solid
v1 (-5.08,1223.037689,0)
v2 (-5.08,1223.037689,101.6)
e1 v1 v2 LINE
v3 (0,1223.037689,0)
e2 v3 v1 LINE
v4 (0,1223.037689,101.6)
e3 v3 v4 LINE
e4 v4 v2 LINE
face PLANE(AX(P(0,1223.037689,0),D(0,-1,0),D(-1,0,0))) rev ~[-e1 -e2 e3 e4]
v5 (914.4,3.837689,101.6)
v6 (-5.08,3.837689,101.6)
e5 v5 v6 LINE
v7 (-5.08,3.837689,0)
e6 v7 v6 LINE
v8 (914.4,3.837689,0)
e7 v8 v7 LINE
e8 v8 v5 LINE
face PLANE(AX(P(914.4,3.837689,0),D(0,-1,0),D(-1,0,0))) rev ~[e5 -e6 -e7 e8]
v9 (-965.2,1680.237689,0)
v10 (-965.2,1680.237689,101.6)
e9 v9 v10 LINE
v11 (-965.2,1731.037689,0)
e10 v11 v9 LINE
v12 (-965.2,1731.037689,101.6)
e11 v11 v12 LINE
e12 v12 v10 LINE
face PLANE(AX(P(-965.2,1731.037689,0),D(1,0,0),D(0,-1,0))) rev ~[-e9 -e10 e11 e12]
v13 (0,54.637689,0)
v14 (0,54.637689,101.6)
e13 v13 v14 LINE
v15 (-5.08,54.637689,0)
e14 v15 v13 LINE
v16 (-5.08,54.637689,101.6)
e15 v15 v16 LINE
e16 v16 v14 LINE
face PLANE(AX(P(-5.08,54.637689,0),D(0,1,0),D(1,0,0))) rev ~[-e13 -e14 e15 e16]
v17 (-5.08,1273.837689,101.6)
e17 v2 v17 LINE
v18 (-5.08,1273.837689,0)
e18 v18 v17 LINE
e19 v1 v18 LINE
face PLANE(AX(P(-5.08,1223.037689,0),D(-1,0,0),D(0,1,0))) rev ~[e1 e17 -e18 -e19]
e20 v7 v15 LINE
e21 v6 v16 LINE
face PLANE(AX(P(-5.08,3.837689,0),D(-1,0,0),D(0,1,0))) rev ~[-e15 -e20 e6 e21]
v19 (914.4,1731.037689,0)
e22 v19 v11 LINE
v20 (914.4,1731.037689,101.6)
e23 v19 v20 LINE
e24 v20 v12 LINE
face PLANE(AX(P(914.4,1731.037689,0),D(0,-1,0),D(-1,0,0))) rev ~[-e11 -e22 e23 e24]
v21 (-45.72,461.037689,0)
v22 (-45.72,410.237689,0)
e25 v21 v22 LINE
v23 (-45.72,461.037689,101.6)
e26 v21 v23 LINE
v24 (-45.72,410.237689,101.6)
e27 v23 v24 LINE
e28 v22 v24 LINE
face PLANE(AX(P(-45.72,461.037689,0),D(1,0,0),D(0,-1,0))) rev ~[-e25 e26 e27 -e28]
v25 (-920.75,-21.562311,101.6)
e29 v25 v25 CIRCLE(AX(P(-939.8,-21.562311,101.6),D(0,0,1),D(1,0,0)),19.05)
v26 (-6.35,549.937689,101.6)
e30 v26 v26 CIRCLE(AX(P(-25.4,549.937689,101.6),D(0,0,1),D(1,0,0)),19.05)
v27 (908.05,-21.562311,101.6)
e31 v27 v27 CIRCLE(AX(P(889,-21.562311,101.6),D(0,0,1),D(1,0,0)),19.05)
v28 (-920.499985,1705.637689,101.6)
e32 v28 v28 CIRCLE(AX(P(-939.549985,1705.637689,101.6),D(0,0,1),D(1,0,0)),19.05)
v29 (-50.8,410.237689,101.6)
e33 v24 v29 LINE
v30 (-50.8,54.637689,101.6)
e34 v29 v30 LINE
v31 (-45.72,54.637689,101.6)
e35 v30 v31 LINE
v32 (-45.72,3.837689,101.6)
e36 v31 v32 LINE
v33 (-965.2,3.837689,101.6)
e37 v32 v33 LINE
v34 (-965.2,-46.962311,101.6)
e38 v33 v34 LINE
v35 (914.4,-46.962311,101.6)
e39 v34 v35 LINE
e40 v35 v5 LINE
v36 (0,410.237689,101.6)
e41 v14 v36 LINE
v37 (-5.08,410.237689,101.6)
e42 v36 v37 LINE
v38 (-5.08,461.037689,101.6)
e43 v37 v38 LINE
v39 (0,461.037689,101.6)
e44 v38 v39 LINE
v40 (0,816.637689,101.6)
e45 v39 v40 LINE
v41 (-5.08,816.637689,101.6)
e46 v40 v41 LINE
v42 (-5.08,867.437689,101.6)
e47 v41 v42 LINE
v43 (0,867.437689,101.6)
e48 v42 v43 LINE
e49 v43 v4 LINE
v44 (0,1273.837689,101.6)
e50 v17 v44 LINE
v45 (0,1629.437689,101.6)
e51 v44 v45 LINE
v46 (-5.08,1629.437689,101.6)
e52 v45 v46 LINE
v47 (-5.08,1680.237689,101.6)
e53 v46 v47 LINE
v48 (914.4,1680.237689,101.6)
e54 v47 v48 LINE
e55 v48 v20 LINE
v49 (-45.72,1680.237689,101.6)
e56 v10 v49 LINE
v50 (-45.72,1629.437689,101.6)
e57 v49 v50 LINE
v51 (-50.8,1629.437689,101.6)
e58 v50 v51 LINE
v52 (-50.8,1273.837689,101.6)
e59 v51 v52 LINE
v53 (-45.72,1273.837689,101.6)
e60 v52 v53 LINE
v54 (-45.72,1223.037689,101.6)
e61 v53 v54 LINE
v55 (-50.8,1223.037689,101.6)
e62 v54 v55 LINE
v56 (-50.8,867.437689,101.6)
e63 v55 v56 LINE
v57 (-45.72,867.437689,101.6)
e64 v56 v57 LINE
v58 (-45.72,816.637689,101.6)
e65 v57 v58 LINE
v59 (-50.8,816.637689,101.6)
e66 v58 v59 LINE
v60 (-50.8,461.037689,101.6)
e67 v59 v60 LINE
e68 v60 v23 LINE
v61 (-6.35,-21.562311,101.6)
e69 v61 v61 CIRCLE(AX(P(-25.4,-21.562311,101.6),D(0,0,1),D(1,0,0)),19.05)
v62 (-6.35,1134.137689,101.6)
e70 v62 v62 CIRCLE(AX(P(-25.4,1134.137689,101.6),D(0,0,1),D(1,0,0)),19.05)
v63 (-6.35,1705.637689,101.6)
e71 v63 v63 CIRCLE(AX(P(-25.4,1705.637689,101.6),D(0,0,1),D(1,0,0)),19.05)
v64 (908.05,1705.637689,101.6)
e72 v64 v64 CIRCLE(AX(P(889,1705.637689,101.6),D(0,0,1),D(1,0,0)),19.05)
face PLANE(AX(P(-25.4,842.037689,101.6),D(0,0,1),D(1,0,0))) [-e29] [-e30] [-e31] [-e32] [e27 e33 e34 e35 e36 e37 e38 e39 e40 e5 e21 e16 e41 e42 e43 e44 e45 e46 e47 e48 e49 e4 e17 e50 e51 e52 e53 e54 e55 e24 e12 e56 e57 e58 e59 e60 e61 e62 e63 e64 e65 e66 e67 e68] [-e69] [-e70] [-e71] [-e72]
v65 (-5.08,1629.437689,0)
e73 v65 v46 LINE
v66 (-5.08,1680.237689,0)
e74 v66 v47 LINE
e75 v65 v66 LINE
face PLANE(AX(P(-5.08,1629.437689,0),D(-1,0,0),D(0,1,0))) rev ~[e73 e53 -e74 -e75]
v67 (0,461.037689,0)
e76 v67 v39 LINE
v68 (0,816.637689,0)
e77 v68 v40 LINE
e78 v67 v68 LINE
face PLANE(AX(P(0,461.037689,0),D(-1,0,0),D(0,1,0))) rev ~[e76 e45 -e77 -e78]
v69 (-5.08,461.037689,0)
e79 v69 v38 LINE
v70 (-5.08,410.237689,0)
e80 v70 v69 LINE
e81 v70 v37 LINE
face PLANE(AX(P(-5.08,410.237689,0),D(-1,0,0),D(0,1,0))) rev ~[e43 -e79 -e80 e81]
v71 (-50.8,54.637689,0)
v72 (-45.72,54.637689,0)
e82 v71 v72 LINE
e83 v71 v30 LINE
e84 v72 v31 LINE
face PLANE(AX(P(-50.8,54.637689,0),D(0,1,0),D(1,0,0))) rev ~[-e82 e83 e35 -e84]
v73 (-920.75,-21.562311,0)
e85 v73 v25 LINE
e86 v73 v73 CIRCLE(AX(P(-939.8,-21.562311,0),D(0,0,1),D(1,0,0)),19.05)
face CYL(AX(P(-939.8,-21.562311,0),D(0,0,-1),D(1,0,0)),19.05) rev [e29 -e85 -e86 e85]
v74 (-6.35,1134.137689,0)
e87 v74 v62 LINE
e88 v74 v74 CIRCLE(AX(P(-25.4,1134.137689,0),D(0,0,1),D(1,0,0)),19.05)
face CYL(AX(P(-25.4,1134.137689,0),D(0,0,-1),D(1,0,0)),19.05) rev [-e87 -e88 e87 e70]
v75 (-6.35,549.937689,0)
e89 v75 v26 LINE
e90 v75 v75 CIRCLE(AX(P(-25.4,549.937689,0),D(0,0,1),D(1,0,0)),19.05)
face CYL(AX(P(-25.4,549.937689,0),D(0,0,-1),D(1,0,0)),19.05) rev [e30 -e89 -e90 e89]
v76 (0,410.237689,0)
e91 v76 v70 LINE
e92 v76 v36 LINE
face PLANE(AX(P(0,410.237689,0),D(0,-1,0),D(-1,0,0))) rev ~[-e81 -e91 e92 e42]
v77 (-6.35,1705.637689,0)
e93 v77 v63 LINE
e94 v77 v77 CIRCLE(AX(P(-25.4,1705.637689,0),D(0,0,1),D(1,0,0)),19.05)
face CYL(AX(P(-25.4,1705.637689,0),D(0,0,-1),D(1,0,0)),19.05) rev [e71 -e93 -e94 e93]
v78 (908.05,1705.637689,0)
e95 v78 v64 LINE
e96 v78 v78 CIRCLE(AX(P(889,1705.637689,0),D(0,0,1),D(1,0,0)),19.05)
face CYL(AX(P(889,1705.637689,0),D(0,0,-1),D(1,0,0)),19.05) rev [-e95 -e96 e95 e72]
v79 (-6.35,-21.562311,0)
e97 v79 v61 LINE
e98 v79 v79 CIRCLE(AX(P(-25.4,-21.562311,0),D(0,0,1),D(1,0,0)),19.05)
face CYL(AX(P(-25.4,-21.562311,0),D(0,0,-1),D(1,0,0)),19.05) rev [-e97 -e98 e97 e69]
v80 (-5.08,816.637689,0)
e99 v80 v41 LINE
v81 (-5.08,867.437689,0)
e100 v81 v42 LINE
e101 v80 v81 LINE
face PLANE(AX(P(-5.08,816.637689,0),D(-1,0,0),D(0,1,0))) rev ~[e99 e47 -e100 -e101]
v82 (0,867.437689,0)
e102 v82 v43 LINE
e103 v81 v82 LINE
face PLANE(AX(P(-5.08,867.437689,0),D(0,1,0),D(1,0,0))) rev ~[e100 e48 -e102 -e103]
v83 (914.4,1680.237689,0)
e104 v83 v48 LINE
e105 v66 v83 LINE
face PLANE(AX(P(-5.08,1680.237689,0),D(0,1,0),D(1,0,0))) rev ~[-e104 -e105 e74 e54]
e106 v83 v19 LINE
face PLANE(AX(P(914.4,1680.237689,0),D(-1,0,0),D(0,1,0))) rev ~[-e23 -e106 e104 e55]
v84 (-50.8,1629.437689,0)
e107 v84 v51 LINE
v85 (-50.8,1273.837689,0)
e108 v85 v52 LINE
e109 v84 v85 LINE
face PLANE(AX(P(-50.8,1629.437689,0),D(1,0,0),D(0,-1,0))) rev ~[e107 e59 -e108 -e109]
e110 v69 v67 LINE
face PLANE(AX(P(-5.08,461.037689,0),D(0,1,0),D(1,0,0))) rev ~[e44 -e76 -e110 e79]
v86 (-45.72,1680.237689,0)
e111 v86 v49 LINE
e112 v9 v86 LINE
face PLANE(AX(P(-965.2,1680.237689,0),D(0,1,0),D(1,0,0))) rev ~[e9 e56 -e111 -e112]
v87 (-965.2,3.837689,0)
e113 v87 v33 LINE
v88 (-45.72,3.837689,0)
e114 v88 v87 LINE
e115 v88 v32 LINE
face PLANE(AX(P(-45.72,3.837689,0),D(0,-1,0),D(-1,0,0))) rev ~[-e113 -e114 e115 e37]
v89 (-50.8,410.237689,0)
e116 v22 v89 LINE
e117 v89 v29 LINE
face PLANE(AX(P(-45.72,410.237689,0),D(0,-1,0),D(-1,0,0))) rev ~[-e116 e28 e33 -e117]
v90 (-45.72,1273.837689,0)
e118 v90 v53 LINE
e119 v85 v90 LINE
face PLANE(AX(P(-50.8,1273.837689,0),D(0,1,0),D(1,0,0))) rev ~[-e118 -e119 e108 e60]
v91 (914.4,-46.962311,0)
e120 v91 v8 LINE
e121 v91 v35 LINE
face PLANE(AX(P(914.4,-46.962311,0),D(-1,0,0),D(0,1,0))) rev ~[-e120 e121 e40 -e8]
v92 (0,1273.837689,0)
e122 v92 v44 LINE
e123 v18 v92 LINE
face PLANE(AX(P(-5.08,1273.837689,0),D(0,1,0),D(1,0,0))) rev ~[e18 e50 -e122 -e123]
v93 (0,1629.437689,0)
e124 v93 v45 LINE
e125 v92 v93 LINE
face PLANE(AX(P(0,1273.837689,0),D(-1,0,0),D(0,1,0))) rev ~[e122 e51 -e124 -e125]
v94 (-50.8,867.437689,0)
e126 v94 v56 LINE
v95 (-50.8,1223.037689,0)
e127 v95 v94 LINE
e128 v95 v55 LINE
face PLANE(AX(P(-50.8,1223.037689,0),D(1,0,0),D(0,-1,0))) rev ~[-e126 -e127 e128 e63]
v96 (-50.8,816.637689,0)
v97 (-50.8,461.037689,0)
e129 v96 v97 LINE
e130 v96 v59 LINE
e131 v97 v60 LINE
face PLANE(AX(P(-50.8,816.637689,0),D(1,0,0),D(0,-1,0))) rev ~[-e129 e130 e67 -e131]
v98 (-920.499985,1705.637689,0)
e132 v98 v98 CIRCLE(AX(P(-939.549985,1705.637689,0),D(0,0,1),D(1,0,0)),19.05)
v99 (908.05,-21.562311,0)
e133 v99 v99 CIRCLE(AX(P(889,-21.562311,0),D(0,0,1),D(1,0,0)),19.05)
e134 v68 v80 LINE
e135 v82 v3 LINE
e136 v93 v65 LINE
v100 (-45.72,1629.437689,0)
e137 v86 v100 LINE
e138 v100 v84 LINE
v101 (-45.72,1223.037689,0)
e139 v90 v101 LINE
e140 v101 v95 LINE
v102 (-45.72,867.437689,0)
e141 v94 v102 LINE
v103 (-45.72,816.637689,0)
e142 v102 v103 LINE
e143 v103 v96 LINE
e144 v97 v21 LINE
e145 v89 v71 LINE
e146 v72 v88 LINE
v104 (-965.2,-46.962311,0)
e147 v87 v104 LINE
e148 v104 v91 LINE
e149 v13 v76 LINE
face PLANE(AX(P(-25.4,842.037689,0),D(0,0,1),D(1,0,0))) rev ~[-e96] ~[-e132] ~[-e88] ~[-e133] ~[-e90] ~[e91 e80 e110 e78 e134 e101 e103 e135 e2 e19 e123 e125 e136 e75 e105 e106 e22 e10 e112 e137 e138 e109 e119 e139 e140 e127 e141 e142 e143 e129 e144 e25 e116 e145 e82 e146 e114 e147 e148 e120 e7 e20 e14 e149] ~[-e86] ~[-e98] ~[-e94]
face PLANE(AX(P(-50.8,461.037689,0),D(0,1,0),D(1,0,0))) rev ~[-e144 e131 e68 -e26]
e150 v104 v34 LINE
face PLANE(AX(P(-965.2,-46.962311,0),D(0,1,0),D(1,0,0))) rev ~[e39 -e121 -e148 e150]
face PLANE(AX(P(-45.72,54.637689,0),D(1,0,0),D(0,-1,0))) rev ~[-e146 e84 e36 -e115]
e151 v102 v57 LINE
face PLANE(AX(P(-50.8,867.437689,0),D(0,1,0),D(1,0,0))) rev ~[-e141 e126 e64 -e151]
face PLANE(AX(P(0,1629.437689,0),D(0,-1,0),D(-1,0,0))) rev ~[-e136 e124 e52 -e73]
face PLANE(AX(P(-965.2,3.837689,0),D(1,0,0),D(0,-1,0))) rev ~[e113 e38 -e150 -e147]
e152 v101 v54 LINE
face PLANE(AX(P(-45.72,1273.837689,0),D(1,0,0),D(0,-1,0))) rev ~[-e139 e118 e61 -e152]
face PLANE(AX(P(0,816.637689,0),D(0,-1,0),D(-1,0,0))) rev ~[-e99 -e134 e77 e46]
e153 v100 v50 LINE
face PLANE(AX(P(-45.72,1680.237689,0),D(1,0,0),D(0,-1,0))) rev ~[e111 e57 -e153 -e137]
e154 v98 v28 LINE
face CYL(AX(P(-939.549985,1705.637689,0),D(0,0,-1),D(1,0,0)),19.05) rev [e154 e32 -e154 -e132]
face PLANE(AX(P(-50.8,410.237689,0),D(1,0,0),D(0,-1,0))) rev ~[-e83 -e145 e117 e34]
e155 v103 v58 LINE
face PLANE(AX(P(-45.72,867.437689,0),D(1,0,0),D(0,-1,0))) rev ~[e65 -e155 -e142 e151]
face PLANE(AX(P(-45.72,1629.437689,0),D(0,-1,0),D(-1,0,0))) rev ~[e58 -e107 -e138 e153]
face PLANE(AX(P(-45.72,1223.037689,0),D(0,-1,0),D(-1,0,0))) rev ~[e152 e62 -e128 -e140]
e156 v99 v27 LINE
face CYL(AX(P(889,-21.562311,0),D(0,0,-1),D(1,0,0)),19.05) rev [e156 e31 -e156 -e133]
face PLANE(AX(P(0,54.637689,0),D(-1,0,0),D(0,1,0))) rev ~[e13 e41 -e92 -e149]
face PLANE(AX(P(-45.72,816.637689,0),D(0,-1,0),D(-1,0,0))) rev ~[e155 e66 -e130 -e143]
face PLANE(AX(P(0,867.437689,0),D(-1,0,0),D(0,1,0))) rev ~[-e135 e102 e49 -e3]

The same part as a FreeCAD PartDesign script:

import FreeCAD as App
import Part
import Sketcher
Q = App.Units.Quantity


def add_polygon(sketch, points):
    """Adds a closed chain of lines whose ends are joined by coincident constraints."""
    first, n = sketch.GeometryCount, len(points)
    for a, b in zip(points, points[1:] + points[:1]):
        sketch.addGeometry(Part.LineSegment(App.Vector(*a, 0), App.Vector(*b, 0)), False)
    for i in range(n):
        sketch.addConstraint(Sketcher.Constraint("Coincident", first + i, 2, first + (i + 1) % n, 1))

doc = App.newDocument("Part")
body = doc.addObject("PartDesign::Body", "Body")

# Sketch on XY plane
sketch1 = doc.addObject("Sketcher::SketchObject", "Sketch")
body.addObject(sketch1)
sketch1.AttachmentSupport = (doc.XY_Plane, [""])
sketch1.MapMode = "FlatFace"
add_polygon(sketch1, [(-965, 1680), (-46, 1680), (-46, 1629), (-51, 1629), (-51, 1274), (-46, 1274), (-46, 1223), (-51, 1223), (-51, 867), (-46, 867), (-46, 817), (-51, 817), (-51, 461), (-46, 461), (-46, 410), (-51, 410), (-51, 55), (-46, 55), (-46, 4), (-965, 4), (-965, -47), (914, -47), (914, 4), (-5, 4), (-5, 55), (0, 55), (0, 410), (-5, 410), (-5, 461), (0, 461), (0, 817), (-5, 817), (-5, 867), (0, 867), (0, 1223), (-5, 1223), (-5, 1274), (0, 1274), (0, 1629), (-5, 1629), (-5, 1680), (914, 1680), (914, 1731), (-965, 1731)])  # lines 0-43
sketch1.addGeometry(Part.Circle(App.Vector(-940, -22, 0), App.Vector(0, 0, 1), 19), False)  # 44
sketch1.addGeometry(Part.Circle(App.Vector(-25, -22, 0), App.Vector(0, 0, 1), 19), False)  # 45
sketch1.addGeometry(Part.Circle(App.Vector(889, -22, 0), App.Vector(0, 0, 1), 19), False)  # 46
sketch1.addGeometry(Part.Circle(App.Vector(-25, 550, 0), App.Vector(0, 0, 1), 19), False)  # 47
sketch1.addGeometry(Part.Circle(App.Vector(-940, 1706, 0), App.Vector(0, 0, 1), 19), False)  # 48
sketch1.addGeometry(Part.Circle(App.Vector(-25, 1134, 0), App.Vector(0, 0, 1), 19), False)  # 49
sketch1.addGeometry(Part.Circle(App.Vector(-25, 1706, 0), App.Vector(0, 0, 1), 19), False)  # 50
sketch1.addGeometry(Part.Circle(App.Vector(889, 1706, 0), App.Vector(0, 0, 1), 19), False)  # 51
sketch1.addConstraint([
    Sketcher.Constraint("Horizontal", 0),
    Sketcher.Constraint("Vertical", 1),
    Sketcher.Constraint("Horizontal", 2),
    Sketcher.Constraint("Vertical", 3),
    Sketcher.Constraint("Horizontal", 4),
    Sketcher.Constraint("Vertical", 5),
    Sketcher.Constraint("Horizontal", 6),
    Sketcher.Constraint("Vertical", 7),
    Sketcher.Constraint("Horizontal", 8),
    Sketcher.Constraint("Vertical", 9),
    Sketcher.Constraint("Horizontal", 10),
    Sketcher.Constraint("Vertical", 11),
    Sketcher.Constraint("Horizontal", 12),
    Sketcher.Constraint("Vertical", 13),
    Sketcher.Constraint("Horizontal", 14),
    Sketcher.Constraint("Vertical", 15),
    Sketcher.Constraint("Horizontal", 16),
    Sketcher.Constraint("Vertical", 17),
    Sketcher.Constraint("Horizontal", 18),
    Sketcher.Constraint("Vertical", 19),
    Sketcher.Constraint("Horizontal", 20),
    Sketcher.Constraint("Vertical", 21),
    Sketcher.Constraint("Horizontal", 22),
    Sketcher.Constraint("Vertical", 23),
    Sketcher.Constraint("Horizontal", 24),
    Sketcher.Constraint("Vertical", 25),
    Sketcher.Constraint("Horizontal", 26),
    Sketcher.Constraint("Vertical", 27),
    Sketcher.Constraint("Horizontal", 28),
    Sketcher.Constraint("Vertical", 29),
    Sketcher.Constraint("Horizontal", 30),
    Sketcher.Constraint("Vertical", 31),
    Sketcher.Constraint("Horizontal", 32),
    Sketcher.Constraint("Vertical", 33),
    Sketcher.Constraint("Horizontal", 34),
    Sketcher.Constraint("Vertical", 35),
    Sketcher.Constraint("Horizontal", 36),
    Sketcher.Constraint("Vertical", 37),
    Sketcher.Constraint("Horizontal", 38),
    Sketcher.Constraint("Vertical", 39),
    Sketcher.Constraint("Horizontal", 40),
    Sketcher.Constraint("Vertical", 41),
    Sketcher.Constraint("Horizontal", 42),
    Sketcher.Constraint("Vertical", 43),
    Sketcher.Constraint("Equal", 44, 45),
    Sketcher.Constraint("Equal", 45, 46),
    Sketcher.Constraint("Equal", 46, 47),
    Sketcher.Constraint("Equal", 47, 48),
    Sketcher.Constraint("Equal", 48, 49),
    Sketcher.Constraint("Equal", 49, 50),
    Sketcher.Constraint("Equal", 50, 51),
    Sketcher.Constraint("PointOnObject", 24, 2, -2),
    Sketcher.Constraint("PointOnObject", 28, 2, -2),
    Sketcher.Constraint("PointOnObject", 32, 2, -2),
    Sketcher.Constraint("PointOnObject", 36, 2, -2),
    Sketcher.Constraint("Horizontal", 44, 3, 45, 3),
    Sketcher.Constraint("Horizontal", 45, 3, 46, 3),
    Sketcher.Constraint("Horizontal", 48, 3, 50, 3),
    Sketcher.Constraint("Horizontal", 50, 3, 51, 3),
    Sketcher.Constraint("Horizontal", 18, 2, 21, 2),
    Sketcher.Constraint("Horizontal", 16, 2, 23, 2),
    Sketcher.Constraint("Horizontal", 14, 2, 25, 2),
    Sketcher.Constraint("Horizontal", 12, 2, 27, 2),
    Sketcher.Constraint("Horizontal", 10, 2, 29, 2),
    Sketcher.Constraint("Horizontal", 8, 2, 31, 2),
    Sketcher.Constraint("Horizontal", 6, 2, 33, 2),
    Sketcher.Constraint("Horizontal", 4, 2, 35, 2),
    Sketcher.Constraint("Horizontal", 2, 2, 37, 2),
    Sketcher.Constraint("Horizontal", 0, 2, 39, 2),
    Sketcher.Constraint("Vertical", 45, 3, 47, 3),
    Sketcher.Constraint("Vertical", 47, 3, 49, 3),
    Sketcher.Constraint("Vertical", 49, 3, 50, 3),
    Sketcher.Constraint("Vertical", 46, 3, 51, 3),
    Sketcher.Constraint("Vertical", 1, 2, 4, 2),
    Sketcher.Constraint("Vertical", 3, 2, 6, 2),
    Sketcher.Constraint("Vertical", 5, 2, 8, 2),
    Sketcher.Constraint("Vertical", 7, 2, 10, 2),
    Sketcher.Constraint("Vertical", 9, 2, 12, 2),
    Sketcher.Constraint("Vertical", 11, 2, 14, 2),
    Sketcher.Constraint("Vertical", 13, 2, 16, 2),
    Sketcher.Constraint("Vertical", 23, 2, 26, 2),
    Sketcher.Constraint("Vertical", 27, 2, 30, 2),
    Sketcher.Constraint("Vertical", 31, 2, 34, 2),
    Sketcher.Constraint("Vertical", 35, 2, 38, 2),
    Sketcher.Constraint("Vertical", 21, 2, 40, 2),
    Sketcher.Constraint("Vertical", 19, 2, 42, 2),
    Sketcher.Constraint("Equal", 18, 22),
    Sketcher.Constraint("Equal", 16, 24),
    Sketcher.Constraint("Equal", 1, 5),
    Sketcher.Constraint("Equal", 3, 7),
    Sketcher.Constraint("Equal", 5, 9),
    Sketcher.Constraint("Equal", 7, 11),
    Sketcher.Constraint("Equal", 9, 13),
    Sketcher.Constraint("Equal", 11, 15),
    Sketcher.Constraint("Equal", 13, 17),
    Sketcher.Constraint("Equal", 17, 19),
    Sketcher.Constraint("Equal", 39, 41),
    Sketcher.Constraint("Diameter", 44, Q("1.5 in")),
    Sketcher.Constraint("DistanceX", 20, 1, 20, 2, Q("74 in")),
    Sketcher.Constraint("DistanceY", 1, 2, 1, 1, Q("2 in")),
    Sketcher.Constraint("DistanceY", 3, 2, 3, 1, Q("14 in")),
    Sketcher.Constraint("DistanceX", 0, 1, 0, 2, Q("36.2 in")),
    Sketcher.Constraint("DistanceX", 2, 2, 2, 1, Q("0.2 in")),
    Sketcher.Constraint("DistanceX", 44, 3, -1, 1, Q("37 in")),
    Sketcher.Constraint("DistanceX", 45, 3, -1, 1, Q("1 in")),
    Sketcher.Constraint("DistanceX", -1, 1, 46, 3, Q("35 in")),
    Sketcher.Constraint("DistanceY", 44, 3, 48, 3, Q("68 in")),
    Sketcher.Constraint("DistanceY", 47, 3, 49, 3, Q("23 in")),
    Sketcher.Constraint("DistanceY", 0, 2, 50, 3, Q("1 in")),
    Sketcher.Constraint("DistanceY", 45, 3, 47, 3, Q("22.5 in")),
    Sketcher.Constraint("DistanceY", 44, 3, -1, 1, Q("21.562311 mm")),
    Sketcher.Constraint("DistanceX", 48, 3, -1, 1, Q("939.549985 mm")),
])
pad1 = doc.addObject("PartDesign::Pad", "Pad")
body.addObject(pad1)
pad1.Profile = sketch1
pad1.Length = Q("4 in")

doc.recompute()
